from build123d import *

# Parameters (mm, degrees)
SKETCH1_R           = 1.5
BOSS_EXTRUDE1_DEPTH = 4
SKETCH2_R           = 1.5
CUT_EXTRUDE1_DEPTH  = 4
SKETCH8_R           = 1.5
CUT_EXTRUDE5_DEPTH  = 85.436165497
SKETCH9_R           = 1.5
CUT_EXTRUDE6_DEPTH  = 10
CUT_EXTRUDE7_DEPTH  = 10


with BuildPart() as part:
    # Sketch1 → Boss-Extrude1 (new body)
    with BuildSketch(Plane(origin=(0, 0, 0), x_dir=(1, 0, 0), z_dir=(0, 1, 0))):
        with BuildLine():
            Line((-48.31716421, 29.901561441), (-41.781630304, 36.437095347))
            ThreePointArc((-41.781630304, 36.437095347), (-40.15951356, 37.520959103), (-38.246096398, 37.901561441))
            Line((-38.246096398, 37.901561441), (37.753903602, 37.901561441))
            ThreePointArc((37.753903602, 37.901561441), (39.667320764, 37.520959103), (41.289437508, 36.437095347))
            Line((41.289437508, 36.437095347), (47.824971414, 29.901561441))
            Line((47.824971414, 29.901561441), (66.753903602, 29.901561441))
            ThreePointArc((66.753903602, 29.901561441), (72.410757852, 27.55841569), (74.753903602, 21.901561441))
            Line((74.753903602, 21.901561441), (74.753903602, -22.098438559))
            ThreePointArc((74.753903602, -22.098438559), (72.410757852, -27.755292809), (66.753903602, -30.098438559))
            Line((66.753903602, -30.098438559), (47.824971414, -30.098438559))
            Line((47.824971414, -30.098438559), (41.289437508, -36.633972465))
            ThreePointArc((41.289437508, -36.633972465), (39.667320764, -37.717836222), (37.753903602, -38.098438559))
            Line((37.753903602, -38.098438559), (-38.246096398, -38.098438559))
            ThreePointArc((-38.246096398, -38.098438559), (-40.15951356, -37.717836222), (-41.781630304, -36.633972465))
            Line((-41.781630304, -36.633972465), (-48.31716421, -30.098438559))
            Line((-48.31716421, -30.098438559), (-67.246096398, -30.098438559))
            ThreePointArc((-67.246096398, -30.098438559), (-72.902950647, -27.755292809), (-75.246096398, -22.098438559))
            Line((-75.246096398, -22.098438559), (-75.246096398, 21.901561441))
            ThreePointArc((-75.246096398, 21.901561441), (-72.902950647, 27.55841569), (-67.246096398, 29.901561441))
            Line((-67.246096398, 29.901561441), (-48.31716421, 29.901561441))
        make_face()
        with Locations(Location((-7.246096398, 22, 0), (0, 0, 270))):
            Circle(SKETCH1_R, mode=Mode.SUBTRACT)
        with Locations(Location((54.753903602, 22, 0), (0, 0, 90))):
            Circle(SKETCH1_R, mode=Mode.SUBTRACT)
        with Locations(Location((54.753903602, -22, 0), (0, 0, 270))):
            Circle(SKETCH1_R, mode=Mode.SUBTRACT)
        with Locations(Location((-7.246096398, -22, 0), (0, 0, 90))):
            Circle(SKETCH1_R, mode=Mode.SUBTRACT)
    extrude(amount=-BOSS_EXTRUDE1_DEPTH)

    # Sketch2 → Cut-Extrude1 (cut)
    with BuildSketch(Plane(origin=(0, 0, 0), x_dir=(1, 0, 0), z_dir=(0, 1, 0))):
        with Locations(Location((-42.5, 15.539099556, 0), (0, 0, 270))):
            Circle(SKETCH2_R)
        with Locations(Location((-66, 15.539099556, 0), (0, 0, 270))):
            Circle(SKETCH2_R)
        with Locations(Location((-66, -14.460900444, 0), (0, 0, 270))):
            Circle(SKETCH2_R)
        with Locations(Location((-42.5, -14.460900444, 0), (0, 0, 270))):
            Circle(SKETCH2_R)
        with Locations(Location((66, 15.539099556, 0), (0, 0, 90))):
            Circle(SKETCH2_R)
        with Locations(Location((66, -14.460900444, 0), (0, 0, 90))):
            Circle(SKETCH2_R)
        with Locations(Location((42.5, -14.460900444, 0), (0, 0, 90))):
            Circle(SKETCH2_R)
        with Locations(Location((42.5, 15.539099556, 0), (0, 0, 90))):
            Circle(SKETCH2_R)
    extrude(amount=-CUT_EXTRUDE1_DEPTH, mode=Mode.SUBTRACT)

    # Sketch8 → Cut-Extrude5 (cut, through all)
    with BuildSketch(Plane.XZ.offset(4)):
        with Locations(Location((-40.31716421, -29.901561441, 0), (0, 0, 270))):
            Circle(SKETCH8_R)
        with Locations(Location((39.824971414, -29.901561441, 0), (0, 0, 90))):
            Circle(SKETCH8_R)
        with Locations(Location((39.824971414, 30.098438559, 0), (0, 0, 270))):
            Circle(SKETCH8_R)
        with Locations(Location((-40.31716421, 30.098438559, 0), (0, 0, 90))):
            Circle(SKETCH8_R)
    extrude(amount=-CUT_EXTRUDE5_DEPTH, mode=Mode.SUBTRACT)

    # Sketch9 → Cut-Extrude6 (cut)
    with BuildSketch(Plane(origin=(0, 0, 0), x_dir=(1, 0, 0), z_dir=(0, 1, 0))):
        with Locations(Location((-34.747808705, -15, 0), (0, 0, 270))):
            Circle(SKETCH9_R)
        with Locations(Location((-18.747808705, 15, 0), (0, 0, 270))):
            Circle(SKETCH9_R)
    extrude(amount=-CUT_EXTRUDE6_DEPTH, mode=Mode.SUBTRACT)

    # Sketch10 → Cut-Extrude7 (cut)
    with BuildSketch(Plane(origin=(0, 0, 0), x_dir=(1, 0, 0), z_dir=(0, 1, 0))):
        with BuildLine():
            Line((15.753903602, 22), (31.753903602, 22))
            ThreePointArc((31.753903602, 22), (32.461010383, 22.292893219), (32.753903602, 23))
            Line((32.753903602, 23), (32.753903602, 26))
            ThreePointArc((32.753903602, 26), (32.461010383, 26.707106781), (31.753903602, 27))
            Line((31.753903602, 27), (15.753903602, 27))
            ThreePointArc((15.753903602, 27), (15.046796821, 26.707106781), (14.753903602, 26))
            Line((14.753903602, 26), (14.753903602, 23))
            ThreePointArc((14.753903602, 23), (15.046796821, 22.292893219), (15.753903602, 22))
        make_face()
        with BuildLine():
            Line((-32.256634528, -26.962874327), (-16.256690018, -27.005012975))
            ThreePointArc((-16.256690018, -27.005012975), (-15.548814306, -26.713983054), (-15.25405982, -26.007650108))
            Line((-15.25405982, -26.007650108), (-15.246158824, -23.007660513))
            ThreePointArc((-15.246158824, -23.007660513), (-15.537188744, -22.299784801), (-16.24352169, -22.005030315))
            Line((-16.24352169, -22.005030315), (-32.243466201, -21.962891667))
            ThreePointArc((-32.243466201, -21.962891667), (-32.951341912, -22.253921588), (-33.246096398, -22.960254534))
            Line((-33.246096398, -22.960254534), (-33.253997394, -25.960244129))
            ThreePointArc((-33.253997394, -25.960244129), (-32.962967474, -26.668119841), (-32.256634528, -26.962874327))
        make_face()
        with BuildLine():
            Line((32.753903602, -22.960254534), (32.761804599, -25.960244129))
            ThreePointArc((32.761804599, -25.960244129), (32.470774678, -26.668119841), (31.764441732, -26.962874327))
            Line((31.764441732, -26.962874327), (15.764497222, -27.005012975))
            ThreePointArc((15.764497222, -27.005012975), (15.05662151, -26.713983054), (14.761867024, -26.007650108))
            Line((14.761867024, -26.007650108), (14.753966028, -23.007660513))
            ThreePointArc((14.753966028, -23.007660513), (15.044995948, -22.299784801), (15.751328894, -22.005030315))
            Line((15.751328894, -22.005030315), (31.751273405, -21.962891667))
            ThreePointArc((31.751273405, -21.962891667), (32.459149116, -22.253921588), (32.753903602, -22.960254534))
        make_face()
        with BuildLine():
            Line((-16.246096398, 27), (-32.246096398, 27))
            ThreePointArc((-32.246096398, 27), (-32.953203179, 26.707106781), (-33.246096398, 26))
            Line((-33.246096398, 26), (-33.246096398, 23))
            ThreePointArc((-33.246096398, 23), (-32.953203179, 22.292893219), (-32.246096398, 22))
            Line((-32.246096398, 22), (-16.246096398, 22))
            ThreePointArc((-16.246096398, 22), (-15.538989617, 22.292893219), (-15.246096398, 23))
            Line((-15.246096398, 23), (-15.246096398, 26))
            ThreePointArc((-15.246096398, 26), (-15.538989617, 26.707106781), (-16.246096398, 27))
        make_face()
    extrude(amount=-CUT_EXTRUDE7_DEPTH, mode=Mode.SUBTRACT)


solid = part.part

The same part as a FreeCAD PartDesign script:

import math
import FreeCAD as App
import Part
import Sketcher

V = App.Vector
Q = App.Units.Quantity

doc = App.newDocument("Part")
params = doc.addObject("Spreadsheet::Sheet", "Params")
for row, (alias, value) in enumerate([
    ("sketch1_diameter", "3 mm"),
    ("sketch1_radius", "8 mm"),
    ("sketch1_radius2", "5 mm"),
    ("sketch1_width", "76 mm"),
    ("sketch1_height", "44 mm"),
    ("pad1_length", "4 mm"),
    ("sketch2_diameter", "3 mm"),
    ("pocket1_length", "4 mm"),
    ("sketch3_diameter", "3 mm"),
    ("sketch4_diameter", "3 mm"),
    ("pocket3_length", "10 mm"),
    ("sketch5_radius", "1 mm"),
    ("sketch5_width", "16 mm"),
    ("sketch5_height", "3 mm"),
    ("sketch5_length", "16 mm"),
    ("sketch5_length2", "3 mm"),
    ("pocket4_length", "10 mm"),
], start=1):
    params.set(f"A{row}", alias)
    params.set(f"B{row}", "=" + value)
    params.setAlias(f"B{row}", alias)

body = doc.addObject("PartDesign::Body", "Body")

sketch1 = body.newObject("Sketcher::SketchObject", "Sketch")
sketch1.AttachmentSupport = (doc.getObject("XZ_Plane"), [""])
sketch1.MapMode = "FlatFace"
sketch1.addGeometry([
    Part.LineSegment(V(-41.8, -36.4, 0), V(-48.3, -29.9, 0)),
    Part.LineSegment(V(-48.3, -29.9, 0), V(-67.2, -29.9, 0)),
    Part.ArcOfCircle(Part.Circle(V(-67.2, -21.9, 0), V(0, 0, 1), 8), math.radians(-180), math.radians(-90)),
    Part.LineSegment(V(-75.2, -21.9, 0), V(-75.2, 22.1, 0)),
    Part.ArcOfCircle(Part.Circle(V(-67.2, 22.1, 0), V(0, 0, 1), 8), math.radians(90), math.radians(180)),
    Part.LineSegment(V(-67.2, 30.1, 0), V(-48.3, 30.1, 0)),
    Part.LineSegment(V(-48.3, 30.1, 0), V(-41.8, 36.6, 0)),
    Part.ArcOfCircle(Part.Circle(V(-38.2, 33.1, 0), V(0, 0, 1), 5), math.radians(90), math.radians(135)),
    Part.LineSegment(V(-38.2, 38.1, 0), V(37.8, 38.1, 0)),
    Part.ArcOfCircle(Part.Circle(V(37.8, 33.1, 0), V(0, 0, 1), 5), math.radians(45), math.radians(90)),
    Part.LineSegment(V(41.3, 36.6, 0), V(47.8, 30.1, 0)),
    Part.LineSegment(V(47.8, 30.1, 0), V(66.8, 30.1, 0)),
    Part.ArcOfCircle(Part.Circle(V(66.8, 22.1, 0), V(0, 0, 1), 8), math.radians(0), math.radians(90)),
    Part.LineSegment(V(74.8, 22.1, 0), V(74.8, -21.9, 0)),
    Part.ArcOfCircle(Part.Circle(V(66.8, -21.9, 0), V(0, 0, 1), 8), math.radians(-90), math.radians(0)),
    Part.LineSegment(V(66.8, -29.9, 0), V(47.8, -29.9, 0)),
    Part.LineSegment(V(47.8, -29.9, 0), V(41.3, -36.4, 0)),
    Part.ArcOfCircle(Part.Circle(V(37.8, -32.9, 0), V(0, 0, 1), 5), math.radians(-90), math.radians(-45)),
    Part.LineSegment(V(37.8, -37.9, 0), V(-38.2, -37.9, 0)),
    Part.ArcOfCircle(Part.Circle(V(-38.2, -32.9, 0), V(0, 0, 1), 5), math.radians(-135), math.radians(-90)),
    Part.Circle(V(54.8, 22, 0), V(0, 0, 1), 1.5),
    Part.Circle(V(-7.2, 22, 0), V(0, 0, 1), 1.5),
    Part.Circle(V(54.8, -22, 0), V(0, 0, 1), 1.5),
    Part.Circle(V(-7.2, -22, 0), V(0, 0, 1), 1.5),
], False)
sketch1.addConstraint([
    Sketcher.Constraint("Coincident", 0, 2, 1, 1),
    Sketcher.Constraint("Tangent", 1, 2, 2, 2),
    Sketcher.Constraint("Tangent", 2, 1, 3, 1),
    Sketcher.Constraint("Tangent", 3, 2, 4, 2),
    Sketcher.Constraint("Tangent", 4, 1, 5, 1),
    Sketcher.Constraint("Coincident", 5, 2, 6, 1),
    Sketcher.Constraint("Tangent", 6, 2, 7, 2),
    Sketcher.Constraint("Tangent", 7, 1, 8, 1),
    Sketcher.Constraint("Tangent", 8, 2, 9, 2),
    Sketcher.Constraint("Tangent", 9, 1, 10, 1),
    Sketcher.Constraint("Coincident", 10, 2, 11, 1),
    Sketcher.Constraint("Tangent", 11, 2, 12, 2),
    Sketcher.Constraint("Tangent", 12, 1, 13, 1),
    Sketcher.Constraint("Tangent", 13, 2, 14, 2),
    Sketcher.Constraint("Tangent", 14, 1, 15, 1),
    Sketcher.Constraint("Coincident", 15, 2, 16, 1),
    Sketcher.Constraint("Tangent", 16, 2, 17, 2),
    Sketcher.Constraint("Tangent", 17, 1, 18, 1),
    Sketcher.Constraint("Tangent", 18, 2, 19, 2),
    Sketcher.Constraint("Tangent", 19, 1, 0, 1),
    Sketcher.Constraint("Horizontal", 1),
    Sketcher.Constraint("Vertical", 3),
    Sketcher.Constraint("Horizontal", 5),
    Sketcher.Constraint("Horizontal", 8),
    Sketcher.Constraint("Horizontal", 11),
    Sketcher.Constraint("Vertical", 13),
    Sketcher.Constraint("Horizontal", 15),
    Sketcher.Constraint("Horizontal", 18),
    Sketcher.Constraint("Equal", 2, 4),
    Sketcher.Constraint("Equal", 7, 9),
    Sketcher.Constraint("Equal", 4, 12),
    Sketcher.Constraint("Equal", 12, 14),
    Sketcher.Constraint("Equal", 9, 17),
    Sketcher.Constraint("Equal", 17, 19),
    Sketcher.Constraint("Equal", 20, 21),
    Sketcher.Constraint("Equal", 21, 22),
    Sketcher.Constraint("Equal", 22, 23),
    Sketcher.Constraint("Symmetric", 20, 3, 22, 3, -1),
    Sketcher.Constraint("Symmetric", 21, 3, 23, 3, -1),
    Sketcher.Constraint("Perpendicular", 0, 6),
    Sketcher.Constraint("Perpendicular", 6, 10),
    Sketcher.Constraint("Perpendicular", 10, 16),
    Sketcher.Constraint("Horizontal", 4, 3, 12, 3),
    Sketcher.Constraint("Horizontal", 2, 3, 14, 3),
    Sketcher.Constraint("Horizontal", 20, 3, 21, 3),
    Sketcher.Constraint("Horizontal", 6, 2, 9, 1),
    Sketcher.Constraint("Vertical", 9, 3, 17, 3),
    Sketcher.Constraint("Vertical", 7, 3, 19, 3),
    Sketcher.Constraint("Vertical", 0, 2, 5, 2),
    Sketcher.Constraint("Equal", 5, 11),
    Sketcher.Constraint("Diameter", 20, Q("3 mm")),
    Sketcher.Constraint("Radius", 2, Q("8 mm")),
    Sketcher.Constraint("Radius", 7, Q("5 mm")),
    Sketcher.Constraint("DistanceX", 8, 1, 8, 2, Q("76 mm")),
    Sketcher.Constraint("DistanceY", 3, 1, 3, 2, Q("44 mm")),
    Sketcher.Constraint("DistanceY", -1, 1, 20, 3, Q("22 mm")),
    Sketcher.Constraint("DistanceX", 4, 3, 7, 3, Q("29 mm")),
    Sketcher.Constraint("DistanceY", 4, 3, 7, 3, Q("11 mm")),
    Sketcher.Constraint("DistanceX", 20, 3, 12, 3, Q("12 mm")),
    Sketcher.Constraint("DistanceX", 7, 3, 21, 3, Q("31 mm")),
    Sketcher.Constraint("DistanceY", 2, 3, -1, 1, Q("21.901561 mm")),
    Sketcher.Constraint("DistanceX", 6, 2, -1, 1, Q("41.78163 mm")),
])
sketch1.setExpression("Constraints[50]", "Params.sketch1_diameter")
sketch1.setExpression("Constraints[51]", "Params.sketch1_radius")
sketch1.setExpression("Constraints[52]", "Params.sketch1_radius2")
sketch1.setExpression("Constraints[53]", "Params.sketch1_width")
sketch1.setExpression("Constraints[54]", "Params.sketch1_height")
pad1 = body.newObject("PartDesign::Pad", "Pad")
pad1.Profile = sketch1
pad1.setExpression("Length", "Params.pad1_length")

sketch2 = body.newObject("Sketcher::SketchObject", "Sketch001")
sketch2.AttachmentSupport = (doc.getObject("XZ_Plane"), [""])
sketch2.MapMode = "FlatFace"
sketch2.addGeometry([
    Part.Circle(V(-42.5, -15.5, 0), V(0, 0, 1), 1.5),
    Part.Circle(V(-66, -15.5, 0), V(0, 0, 1), 1.5),
    Part.Circle(V(-66, 14.5, 0), V(0, 0, 1), 1.5),
    Part.Circle(V(-42.5, 14.5, 0), V(0, 0, 1), 1.5),
    Part.Circle(V(66, -15.5, 0), V(0, 0, 1), 1.5),
    Part.Circle(V(66, 14.5, 0), V(0, 0, 1), 1.5),
    Part.Circle(V(42.5, 14.5, 0), V(0, 0, 1), 1.5),
    Part.Circle(V(42.5, -15.5, 0), V(0, 0, 1), 1.5),
], False)
sketch2.addConstraint([
    Sketcher.Constraint("Equal", 0, 1),
    Sketcher.Constraint("Equal", 1, 2),
    Sketcher.Constraint("Equal", 2, 3),
    Sketcher.Constraint("Equal", 3, 4),
    Sketcher.Constraint("Equal", 4, 5),
    Sketcher.Constraint("Equal", 5, 6),
    Sketcher.Constraint("Equal", 6, 7),
    Sketcher.Constraint("Symmetric", 1, 3, 4, 3, -2),
    Sketcher.Constraint("Symmetric", 2, 3, 5, 3, -2),
    Sketcher.Constraint("Symmetric", 3, 3, 6, 3, -2),
    Sketcher.Constraint("Symmetric", 0, 3, 7, 3, -2),
    Sketcher.Constraint("Horizontal", 0, 3, 1, 3),
    Sketcher.Constraint("Horizontal", 2, 3, 3, 3),
    Sketcher.Constraint("Vertical", 1, 3, 2, 3),
    Sketcher.Constraint("Vertical", 0, 3, 3, 3),
    Sketcher.Constraint("Diameter", 0, Q("3 mm")),
    Sketcher.Constraint("DistanceX", 1, 3, -1, 1, Q("66 mm")),
    Sketcher.Constraint("DistanceY", 1, 3, 2, 3, Q("30 mm")),
    Sketcher.Constraint("DistanceX", 3, 3, 6, 3, Q("85 mm")),
    Sketcher.Constraint("DistanceY", 0, 3, -1, 1, Q("15.5391 mm")),
])
sketch2.setExpression("Constraints[15]", "Params.sketch2_diameter")
pocket1 = body.newObject("PartDesign::Pocket", "Pocket")
pocket1.Profile = sketch2
pocket1.setExpression("Length", "Params.pocket1_length")
pocket1.Reversed = True

sketch3 = body.newObject("Sketcher::SketchObject", "Sketch002")
sketch3.AttachmentSupport = (doc.getObject("XZ_Plane"), [""])
sketch3.MapMode = "FlatFace"
sketch3.AttachmentOffset = App.Placement(V(0, 0, 4), App.Rotation())
sketch3.addGeometry([
    Part.Circle(V(-40.3, -29.9, 0), V(0, 0, 1), 1.5),
    Part.Circle(V(39.8, -29.9, 0), V(0, 0, 1), 1.5),
    Part.Circle(V(39.8, 30.1, 0), V(0, 0, 1), 1.5),
    Part.Circle(V(-40.3, 30.1, 0), V(0, 0, 1), 1.5),
], False)
sketch3.addConstraint([
    Sketcher.Constraint("Equal", 0, 1),
    Sketcher.Constraint("Equal", 1, 2),
    Sketcher.Constraint("Equal", 2, 3),
    Sketcher.Constraint("Horizontal", 0, 3, 1, 3),
    Sketcher.Constraint("Horizontal", 2, 3, 3, 3),
    Sketcher.Constraint("Vertical", 1, 3, 2, 3),
    Sketcher.Constraint("Vertical", 0, 3, 3, 3),
    Sketcher.Constraint("Diameter", 0, Q("3 mm")),
    Sketcher.Constraint("DistanceY", 1, 3, 2, 3, Q("60 mm")),
    Sketcher.Constraint("DistanceY", 0, 3, -1, 1, Q("29.901561 mm")),
    Sketcher.Constraint("DistanceX", -1, 1, 1, 3, Q("39.824971 mm")),
    Sketcher.Constraint("DistanceX", 0, 3, -1, 1, Q("40.317164 mm")),
])
sketch3.setExpression("Constraints[7]", "Params.sketch3_diameter")
pocket2 = body.newObject("PartDesign::Pocket", "Pocket001")
pocket2.Profile = sketch3
pocket2.Type = "ThroughAll"

sketch4 = body.newObject("Sketcher::SketchObject", "Sketch003")
sketch4.AttachmentSupport = (doc.getObject("XZ_Plane"), [""])
sketch4.MapMode = "FlatFace"
sketch4.addGeometry([
    Part.Circle(V(-34.7, 15, 0), V(0, 0, 1), 1.5),
    Part.Circle(V(-18.7, -15, 0), V(0, 0, 1), 1.5),
], False)
sketch4.addConstraint([
    Sketcher.Constraint("Equal", 0, 1),
    Sketcher.Constraint("Diameter", 0, Q("3 mm")),
    Sketcher.Constraint("DistanceY", -1, 1, 0, 3, Q("15 mm")),
    Sketcher.Constraint("DistanceY", 1, 3, -1, 1, Q("15 mm")),
    Sketcher.Constraint("DistanceX", 0, 3, 1, 3, Q("16 mm")),
    Sketcher.Constraint("DistanceX", 0, 3, -1, 1, Q("34.747809 mm")),
])
sketch4.setExpression("Constraints[1]", "Params.sketch4_diameter")
pocket3 = body.newObject("PartDesign::Pocket", "Pocket002")
pocket3.Profile = sketch4
pocket3.setExpression("Length", "Params.pocket3_length")
pocket3.Reversed = True

sketch5 = body.newObject("Sketcher::SketchObject", "Sketch004")
sketch5.AttachmentSupport = (doc.getObject("XZ_Plane"), [""])
sketch5.MapMode = "FlatFace"
sketch5.addGeometry([
    Part.LineSegment(V(15.8, -22, 0), V(31.8, -22, 0)),
    Part.ArcOfCircle(Part.Circle(V(31.8, -23, 0), V(0, 0, 1), 1), math.radians(0), math.radians(90)),
    Part.LineSegment(V(32.8, -23, 0), V(32.8, -26, 0)),
    Part.ArcOfCircle(Part.Circle(V(31.8, -26, 0), V(0, 0, 1), 1), math.radians(-90), math.radians(0)),
    Part.LineSegment(V(31.8, -27, 0), V(15.8, -27, 0)),
    Part.ArcOfCircle(Part.Circle(V(15.8, -26, 0), V(0, 0, 1), 1), math.radians(-180), math.radians(-90)),
    Part.LineSegment(V(14.8, -26, 0), V(14.8, -23, 0)),
    Part.ArcOfCircle(Part.Circle(V(15.8, -23, 0), V(0, 0, 1), 1), math.radians(90), math.radians(180)),
    Part.LineSegment(V(-32.3, 27, 0), V(-16.3, 27, 0)),
    Part.ArcOfCircle(Part.Circle(V(-16.3, 26, 0), V(0, 0, 1), 1), math.radians(0), math.radians(90)),
    Part.LineSegment(V(-15.3, 26, 0), V(-15.2, 23, 0)),
    Part.ArcOfCircle(Part.Circle(V(-16.2, 23, 0), V(0, 0, 1), 1), math.radians(-90), math.radians(0)),
    Part.LineSegment(V(-16.2, 22, 0), V(-32.2, 22, 0)),
    Part.ArcOfCircle(Part.Circle(V(-32.2, 23, 0), V(0, 0, 1), 1), math.radians(-180), math.radians(-90)),
    Part.LineSegment(V(-33.2, 23, 0), V(-33.3, 26, 0)),
    Part.ArcOfCircle(Part.Circle(V(-32.3, 26, 0), V(0, 0, 1), 1), math.radians(90), math.radians(180)),
    Part.LineSegment(V(32.8, 26, 0), V(32.8, 23, 0)),
    Part.ArcOfCircle(Part.Circle(V(31.8, 23, 0), V(0, 0, 1), 1), math.radians(-90), math.radians(0)),
    Part.LineSegment(V(31.8, 22, 0), V(15.8, 22, 0)),
    Part.ArcOfCircle(Part.Circle(V(15.8, 23, 0), V(0, 0, 1), 1), math.radians(180), math.radians(270)),
    Part.LineSegment(V(14.8, 23, 0), V(14.8, 26, 0)),
    Part.ArcOfCircle(Part.Circle(V(15.8, 26, 0), V(0, 0, 1), 1), math.radians(90), math.radians(180)),
    Part.LineSegment(V(15.8, 27, 0), V(31.8, 27, 0)),
    Part.ArcOfCircle(Part.Circle(V(31.8, 26, 0), V(0, 0, 1), 1), math.radians(0), math.radians(90)),
    Part.LineSegment(V(-16.2, -27, 0), V(-32.2, -27, 0)),
    Part.ArcOfCircle(Part.Circle(V(-32.2, -26, 0), V(0, 0, 1), 1), math.radians(-180), math.radians(-90)),
    Part.LineSegment(V(-33.2, -26, 0), V(-33.2, -23, 0)),
    Part.ArcOfCircle(Part.Circle(V(-32.2, -23, 0), V(0, 0, 1), 1), math.radians(90), math.radians(180)),
    Part.LineSegment(V(-32.2, -22, 0), V(-16.2, -22, 0)),
    Part.ArcOfCircle(Part.Circle(V(-16.2, -23, 0), V(0, 0, 1), 1), math.radians(0), math.radians(90)),
    Part.LineSegment(V(-15.2, -23, 0), V(-15.2, -26, 0)),
    Part.ArcOfCircle(Part.Circle(V(-16.2, -26, 0), V(0, 0, 1), 1), math.radians(-90), math.radians(0)),
], False)
sketch5.addConstraint([
    Sketcher.Constraint("Tangent", 0, 2, 1, 2),
    Sketcher.Constraint("Tangent", 1, 1, 2, 1),
    Sketcher.Constraint("Tangent", 2, 2, 3, 2),
    Sketcher.Constraint("Tangent", 3, 1, 4, 1),
    Sketcher.Constraint("Tangent", 4, 2, 5, 2),
    Sketcher.Constraint("Tangent", 5, 1, 6, 1),
    Sketcher.Constraint("Tangent", 6, 2, 7, 2),
    Sketcher.Constraint("Tangent", 7, 1, 0, 1),
    Sketcher.Constraint("Tangent", 8, 2, 9, 2),
    Sketcher.Constraint("Tangent", 9, 1, 10, 1),
    Sketcher.Constraint("Tangent", 10, 2, 11, 2),
    Sketcher.Constraint("Tangent", 11, 1, 12, 1),
    Sketcher.Constraint("Tangent", 12, 2, 13, 2),
    Sketcher.Constraint("Tangent", 13, 1, 14, 1),
    Sketcher.Constraint("Tangent", 14, 2, 15, 2),
    Sketcher.Constraint("Tangent", 15, 1, 8, 1),
    Sketcher.Constraint("Tangent", 16, 2, 17, 2),
    Sketcher.Constraint("Tangent", 17, 1, 18, 1),
    Sketcher.Constraint("Tangent", 18, 2, 19, 2),
    Sketcher.Constraint("Tangent", 19, 1, 20, 1),
    Sketcher.Constraint("Tangent", 20, 2, 21, 2),
    Sketcher.Constraint("Tangent", 21, 1, 22, 1),
    Sketcher.Constraint("Tangent", 22, 2, 23, 2),
    Sketcher.Constraint("Tangent", 23, 1, 16, 1),
    Sketcher.Constraint("Tangent", 24, 2, 25, 2),
    Sketcher.Constraint("Tangent", 25, 1, 26, 1),
    Sketcher.Constraint("Tangent", 26, 2, 27, 2),
    Sketcher.Constraint("Tangent", 27, 1, 28, 1),
    Sketcher.Constraint("Tangent", 28, 2, 29, 2),
    Sketcher.Constraint("Tangent", 29, 1, 30, 1),
    Sketcher.Constraint("Tangent", 30, 2, 31, 2),
    Sketcher.Constraint("Tangent", 31, 1, 24, 1),
    Sketcher.Constraint("Horizontal", 0),
    Sketcher.Constraint("Vertical", 2),
    Sketcher.Constraint("Horizontal", 4),
    Sketcher.Constraint("Vertical", 6),
    Sketcher.Constraint("Horizontal", 24),
    Sketcher.Constraint("Vertical", 26),
    Sketcher.Constraint("Horizontal", 28),
    Sketcher.Constraint("Vertical", 30),
    Sketcher.Constraint("Equal", 1, 3),
    Sketcher.Constraint("Equal", 3, 5),
    Sketcher.Constraint("Equal", 5, 7),
    Sketcher.Constraint("Equal", 7, 9),
    Sketcher.Constraint("Equal", 9, 11),
    Sketcher.Constraint("Equal", 11, 13),
    Sketcher.Constraint("Equal", 13, 15),
    Sketcher.Constraint("Equal", 15, 17),
    Sketcher.Constraint("Equal", 17, 19),
    Sketcher.Constraint("Equal", 19, 21),
    Sketcher.Constraint("Equal", 21, 23),
    Sketcher.Constraint("Equal", 23, 25),
    Sketcher.Constraint("Equal", 25, 27),
    Sketcher.Constraint("Equal", 27, 29),
    Sketcher.Constraint("Equal", 29, 31),
    Sketcher.Constraint("Perpendicular", 8, 10),
    Sketcher.Constraint("Perpendicular", 10, 12),
    Sketcher.Constraint("Perpendicular", 12, 14),
    Sketcher.Constraint("Perpendicular", 16, 18),
    Sketcher.Constraint("Perpendicular", 18, 20),
    Sketcher.Constraint("Perpendicular", 20, 22),
    Sketcher.Constraint("Horizontal", 13, 3, 17, 3),
    Sketcher.Constraint("Horizontal", 11, 3, 19, 3),
    Sketcher.Constraint("Horizontal", 9, 3, 21, 3),
    Sketcher.Constraint("Horizontal", 5, 3, 25, 3),
    Sketcher.Constraint("Horizontal", 7, 3, 27, 3),
    Sketcher.Constraint("Vertical", 2, 2, 16, 2),
    Sketcher.Constraint("Vertical", 13, 1, 25, 1),
    Sketcher.Constraint("Equal", 4, 24),
    Sketcher.Constraint("Equal", 12, 18),
    Sketcher.Constraint("Radius", 1, Q("1 mm")),
    Sketcher.Constraint("DistanceX", 0, 1, 0, 2, Q("16 mm")),
    Sketcher.Constraint("DistanceY", 2, 2, 2, 1, Q("3 mm")),
    Sketcher.Constraint("Distance", 8, Q("16 mm")),
    Sketcher.Constraint("Distance", 10, Q("3 mm")),
    Sketcher.Constraint("DistanceY", 1, 3, -1, 1, Q("23 mm")),
    Sketcher.Constraint("DistanceX", 25, 3, 5, 3, Q("48 mm")),
    Sketcher.Constraint("DistanceX", 15, 3, -1, 1, Q("32.254001 mm")),
    Sketcher.Constraint("DistanceX", 13, 3, -1, 1, Q("32.2461 mm")),
    Sketcher.Constraint("DistanceY", -1, 1, 13, 3, Q("22.962888 mm")),
])
sketch5.setExpression("Constraints[70]", "Params.sketch5_radius")
sketch5.setExpression("Constraints[71]", "Params.sketch5_width")
sketch5.setExpression("Constraints[72]", "Params.sketch5_height")
sketch5.setExpression("Constraints[73]", "Params.sketch5_length")
sketch5.setExpression("Constraints[74]", "Params.sketch5_length2")
pocket4 = body.newObject("PartDesign::Pocket", "Pocket003")
pocket4.Profile = sketch5
pocket4.setExpression("Length", "Params.pocket4_length")
pocket4.Reversed = True

doc.recompute()
